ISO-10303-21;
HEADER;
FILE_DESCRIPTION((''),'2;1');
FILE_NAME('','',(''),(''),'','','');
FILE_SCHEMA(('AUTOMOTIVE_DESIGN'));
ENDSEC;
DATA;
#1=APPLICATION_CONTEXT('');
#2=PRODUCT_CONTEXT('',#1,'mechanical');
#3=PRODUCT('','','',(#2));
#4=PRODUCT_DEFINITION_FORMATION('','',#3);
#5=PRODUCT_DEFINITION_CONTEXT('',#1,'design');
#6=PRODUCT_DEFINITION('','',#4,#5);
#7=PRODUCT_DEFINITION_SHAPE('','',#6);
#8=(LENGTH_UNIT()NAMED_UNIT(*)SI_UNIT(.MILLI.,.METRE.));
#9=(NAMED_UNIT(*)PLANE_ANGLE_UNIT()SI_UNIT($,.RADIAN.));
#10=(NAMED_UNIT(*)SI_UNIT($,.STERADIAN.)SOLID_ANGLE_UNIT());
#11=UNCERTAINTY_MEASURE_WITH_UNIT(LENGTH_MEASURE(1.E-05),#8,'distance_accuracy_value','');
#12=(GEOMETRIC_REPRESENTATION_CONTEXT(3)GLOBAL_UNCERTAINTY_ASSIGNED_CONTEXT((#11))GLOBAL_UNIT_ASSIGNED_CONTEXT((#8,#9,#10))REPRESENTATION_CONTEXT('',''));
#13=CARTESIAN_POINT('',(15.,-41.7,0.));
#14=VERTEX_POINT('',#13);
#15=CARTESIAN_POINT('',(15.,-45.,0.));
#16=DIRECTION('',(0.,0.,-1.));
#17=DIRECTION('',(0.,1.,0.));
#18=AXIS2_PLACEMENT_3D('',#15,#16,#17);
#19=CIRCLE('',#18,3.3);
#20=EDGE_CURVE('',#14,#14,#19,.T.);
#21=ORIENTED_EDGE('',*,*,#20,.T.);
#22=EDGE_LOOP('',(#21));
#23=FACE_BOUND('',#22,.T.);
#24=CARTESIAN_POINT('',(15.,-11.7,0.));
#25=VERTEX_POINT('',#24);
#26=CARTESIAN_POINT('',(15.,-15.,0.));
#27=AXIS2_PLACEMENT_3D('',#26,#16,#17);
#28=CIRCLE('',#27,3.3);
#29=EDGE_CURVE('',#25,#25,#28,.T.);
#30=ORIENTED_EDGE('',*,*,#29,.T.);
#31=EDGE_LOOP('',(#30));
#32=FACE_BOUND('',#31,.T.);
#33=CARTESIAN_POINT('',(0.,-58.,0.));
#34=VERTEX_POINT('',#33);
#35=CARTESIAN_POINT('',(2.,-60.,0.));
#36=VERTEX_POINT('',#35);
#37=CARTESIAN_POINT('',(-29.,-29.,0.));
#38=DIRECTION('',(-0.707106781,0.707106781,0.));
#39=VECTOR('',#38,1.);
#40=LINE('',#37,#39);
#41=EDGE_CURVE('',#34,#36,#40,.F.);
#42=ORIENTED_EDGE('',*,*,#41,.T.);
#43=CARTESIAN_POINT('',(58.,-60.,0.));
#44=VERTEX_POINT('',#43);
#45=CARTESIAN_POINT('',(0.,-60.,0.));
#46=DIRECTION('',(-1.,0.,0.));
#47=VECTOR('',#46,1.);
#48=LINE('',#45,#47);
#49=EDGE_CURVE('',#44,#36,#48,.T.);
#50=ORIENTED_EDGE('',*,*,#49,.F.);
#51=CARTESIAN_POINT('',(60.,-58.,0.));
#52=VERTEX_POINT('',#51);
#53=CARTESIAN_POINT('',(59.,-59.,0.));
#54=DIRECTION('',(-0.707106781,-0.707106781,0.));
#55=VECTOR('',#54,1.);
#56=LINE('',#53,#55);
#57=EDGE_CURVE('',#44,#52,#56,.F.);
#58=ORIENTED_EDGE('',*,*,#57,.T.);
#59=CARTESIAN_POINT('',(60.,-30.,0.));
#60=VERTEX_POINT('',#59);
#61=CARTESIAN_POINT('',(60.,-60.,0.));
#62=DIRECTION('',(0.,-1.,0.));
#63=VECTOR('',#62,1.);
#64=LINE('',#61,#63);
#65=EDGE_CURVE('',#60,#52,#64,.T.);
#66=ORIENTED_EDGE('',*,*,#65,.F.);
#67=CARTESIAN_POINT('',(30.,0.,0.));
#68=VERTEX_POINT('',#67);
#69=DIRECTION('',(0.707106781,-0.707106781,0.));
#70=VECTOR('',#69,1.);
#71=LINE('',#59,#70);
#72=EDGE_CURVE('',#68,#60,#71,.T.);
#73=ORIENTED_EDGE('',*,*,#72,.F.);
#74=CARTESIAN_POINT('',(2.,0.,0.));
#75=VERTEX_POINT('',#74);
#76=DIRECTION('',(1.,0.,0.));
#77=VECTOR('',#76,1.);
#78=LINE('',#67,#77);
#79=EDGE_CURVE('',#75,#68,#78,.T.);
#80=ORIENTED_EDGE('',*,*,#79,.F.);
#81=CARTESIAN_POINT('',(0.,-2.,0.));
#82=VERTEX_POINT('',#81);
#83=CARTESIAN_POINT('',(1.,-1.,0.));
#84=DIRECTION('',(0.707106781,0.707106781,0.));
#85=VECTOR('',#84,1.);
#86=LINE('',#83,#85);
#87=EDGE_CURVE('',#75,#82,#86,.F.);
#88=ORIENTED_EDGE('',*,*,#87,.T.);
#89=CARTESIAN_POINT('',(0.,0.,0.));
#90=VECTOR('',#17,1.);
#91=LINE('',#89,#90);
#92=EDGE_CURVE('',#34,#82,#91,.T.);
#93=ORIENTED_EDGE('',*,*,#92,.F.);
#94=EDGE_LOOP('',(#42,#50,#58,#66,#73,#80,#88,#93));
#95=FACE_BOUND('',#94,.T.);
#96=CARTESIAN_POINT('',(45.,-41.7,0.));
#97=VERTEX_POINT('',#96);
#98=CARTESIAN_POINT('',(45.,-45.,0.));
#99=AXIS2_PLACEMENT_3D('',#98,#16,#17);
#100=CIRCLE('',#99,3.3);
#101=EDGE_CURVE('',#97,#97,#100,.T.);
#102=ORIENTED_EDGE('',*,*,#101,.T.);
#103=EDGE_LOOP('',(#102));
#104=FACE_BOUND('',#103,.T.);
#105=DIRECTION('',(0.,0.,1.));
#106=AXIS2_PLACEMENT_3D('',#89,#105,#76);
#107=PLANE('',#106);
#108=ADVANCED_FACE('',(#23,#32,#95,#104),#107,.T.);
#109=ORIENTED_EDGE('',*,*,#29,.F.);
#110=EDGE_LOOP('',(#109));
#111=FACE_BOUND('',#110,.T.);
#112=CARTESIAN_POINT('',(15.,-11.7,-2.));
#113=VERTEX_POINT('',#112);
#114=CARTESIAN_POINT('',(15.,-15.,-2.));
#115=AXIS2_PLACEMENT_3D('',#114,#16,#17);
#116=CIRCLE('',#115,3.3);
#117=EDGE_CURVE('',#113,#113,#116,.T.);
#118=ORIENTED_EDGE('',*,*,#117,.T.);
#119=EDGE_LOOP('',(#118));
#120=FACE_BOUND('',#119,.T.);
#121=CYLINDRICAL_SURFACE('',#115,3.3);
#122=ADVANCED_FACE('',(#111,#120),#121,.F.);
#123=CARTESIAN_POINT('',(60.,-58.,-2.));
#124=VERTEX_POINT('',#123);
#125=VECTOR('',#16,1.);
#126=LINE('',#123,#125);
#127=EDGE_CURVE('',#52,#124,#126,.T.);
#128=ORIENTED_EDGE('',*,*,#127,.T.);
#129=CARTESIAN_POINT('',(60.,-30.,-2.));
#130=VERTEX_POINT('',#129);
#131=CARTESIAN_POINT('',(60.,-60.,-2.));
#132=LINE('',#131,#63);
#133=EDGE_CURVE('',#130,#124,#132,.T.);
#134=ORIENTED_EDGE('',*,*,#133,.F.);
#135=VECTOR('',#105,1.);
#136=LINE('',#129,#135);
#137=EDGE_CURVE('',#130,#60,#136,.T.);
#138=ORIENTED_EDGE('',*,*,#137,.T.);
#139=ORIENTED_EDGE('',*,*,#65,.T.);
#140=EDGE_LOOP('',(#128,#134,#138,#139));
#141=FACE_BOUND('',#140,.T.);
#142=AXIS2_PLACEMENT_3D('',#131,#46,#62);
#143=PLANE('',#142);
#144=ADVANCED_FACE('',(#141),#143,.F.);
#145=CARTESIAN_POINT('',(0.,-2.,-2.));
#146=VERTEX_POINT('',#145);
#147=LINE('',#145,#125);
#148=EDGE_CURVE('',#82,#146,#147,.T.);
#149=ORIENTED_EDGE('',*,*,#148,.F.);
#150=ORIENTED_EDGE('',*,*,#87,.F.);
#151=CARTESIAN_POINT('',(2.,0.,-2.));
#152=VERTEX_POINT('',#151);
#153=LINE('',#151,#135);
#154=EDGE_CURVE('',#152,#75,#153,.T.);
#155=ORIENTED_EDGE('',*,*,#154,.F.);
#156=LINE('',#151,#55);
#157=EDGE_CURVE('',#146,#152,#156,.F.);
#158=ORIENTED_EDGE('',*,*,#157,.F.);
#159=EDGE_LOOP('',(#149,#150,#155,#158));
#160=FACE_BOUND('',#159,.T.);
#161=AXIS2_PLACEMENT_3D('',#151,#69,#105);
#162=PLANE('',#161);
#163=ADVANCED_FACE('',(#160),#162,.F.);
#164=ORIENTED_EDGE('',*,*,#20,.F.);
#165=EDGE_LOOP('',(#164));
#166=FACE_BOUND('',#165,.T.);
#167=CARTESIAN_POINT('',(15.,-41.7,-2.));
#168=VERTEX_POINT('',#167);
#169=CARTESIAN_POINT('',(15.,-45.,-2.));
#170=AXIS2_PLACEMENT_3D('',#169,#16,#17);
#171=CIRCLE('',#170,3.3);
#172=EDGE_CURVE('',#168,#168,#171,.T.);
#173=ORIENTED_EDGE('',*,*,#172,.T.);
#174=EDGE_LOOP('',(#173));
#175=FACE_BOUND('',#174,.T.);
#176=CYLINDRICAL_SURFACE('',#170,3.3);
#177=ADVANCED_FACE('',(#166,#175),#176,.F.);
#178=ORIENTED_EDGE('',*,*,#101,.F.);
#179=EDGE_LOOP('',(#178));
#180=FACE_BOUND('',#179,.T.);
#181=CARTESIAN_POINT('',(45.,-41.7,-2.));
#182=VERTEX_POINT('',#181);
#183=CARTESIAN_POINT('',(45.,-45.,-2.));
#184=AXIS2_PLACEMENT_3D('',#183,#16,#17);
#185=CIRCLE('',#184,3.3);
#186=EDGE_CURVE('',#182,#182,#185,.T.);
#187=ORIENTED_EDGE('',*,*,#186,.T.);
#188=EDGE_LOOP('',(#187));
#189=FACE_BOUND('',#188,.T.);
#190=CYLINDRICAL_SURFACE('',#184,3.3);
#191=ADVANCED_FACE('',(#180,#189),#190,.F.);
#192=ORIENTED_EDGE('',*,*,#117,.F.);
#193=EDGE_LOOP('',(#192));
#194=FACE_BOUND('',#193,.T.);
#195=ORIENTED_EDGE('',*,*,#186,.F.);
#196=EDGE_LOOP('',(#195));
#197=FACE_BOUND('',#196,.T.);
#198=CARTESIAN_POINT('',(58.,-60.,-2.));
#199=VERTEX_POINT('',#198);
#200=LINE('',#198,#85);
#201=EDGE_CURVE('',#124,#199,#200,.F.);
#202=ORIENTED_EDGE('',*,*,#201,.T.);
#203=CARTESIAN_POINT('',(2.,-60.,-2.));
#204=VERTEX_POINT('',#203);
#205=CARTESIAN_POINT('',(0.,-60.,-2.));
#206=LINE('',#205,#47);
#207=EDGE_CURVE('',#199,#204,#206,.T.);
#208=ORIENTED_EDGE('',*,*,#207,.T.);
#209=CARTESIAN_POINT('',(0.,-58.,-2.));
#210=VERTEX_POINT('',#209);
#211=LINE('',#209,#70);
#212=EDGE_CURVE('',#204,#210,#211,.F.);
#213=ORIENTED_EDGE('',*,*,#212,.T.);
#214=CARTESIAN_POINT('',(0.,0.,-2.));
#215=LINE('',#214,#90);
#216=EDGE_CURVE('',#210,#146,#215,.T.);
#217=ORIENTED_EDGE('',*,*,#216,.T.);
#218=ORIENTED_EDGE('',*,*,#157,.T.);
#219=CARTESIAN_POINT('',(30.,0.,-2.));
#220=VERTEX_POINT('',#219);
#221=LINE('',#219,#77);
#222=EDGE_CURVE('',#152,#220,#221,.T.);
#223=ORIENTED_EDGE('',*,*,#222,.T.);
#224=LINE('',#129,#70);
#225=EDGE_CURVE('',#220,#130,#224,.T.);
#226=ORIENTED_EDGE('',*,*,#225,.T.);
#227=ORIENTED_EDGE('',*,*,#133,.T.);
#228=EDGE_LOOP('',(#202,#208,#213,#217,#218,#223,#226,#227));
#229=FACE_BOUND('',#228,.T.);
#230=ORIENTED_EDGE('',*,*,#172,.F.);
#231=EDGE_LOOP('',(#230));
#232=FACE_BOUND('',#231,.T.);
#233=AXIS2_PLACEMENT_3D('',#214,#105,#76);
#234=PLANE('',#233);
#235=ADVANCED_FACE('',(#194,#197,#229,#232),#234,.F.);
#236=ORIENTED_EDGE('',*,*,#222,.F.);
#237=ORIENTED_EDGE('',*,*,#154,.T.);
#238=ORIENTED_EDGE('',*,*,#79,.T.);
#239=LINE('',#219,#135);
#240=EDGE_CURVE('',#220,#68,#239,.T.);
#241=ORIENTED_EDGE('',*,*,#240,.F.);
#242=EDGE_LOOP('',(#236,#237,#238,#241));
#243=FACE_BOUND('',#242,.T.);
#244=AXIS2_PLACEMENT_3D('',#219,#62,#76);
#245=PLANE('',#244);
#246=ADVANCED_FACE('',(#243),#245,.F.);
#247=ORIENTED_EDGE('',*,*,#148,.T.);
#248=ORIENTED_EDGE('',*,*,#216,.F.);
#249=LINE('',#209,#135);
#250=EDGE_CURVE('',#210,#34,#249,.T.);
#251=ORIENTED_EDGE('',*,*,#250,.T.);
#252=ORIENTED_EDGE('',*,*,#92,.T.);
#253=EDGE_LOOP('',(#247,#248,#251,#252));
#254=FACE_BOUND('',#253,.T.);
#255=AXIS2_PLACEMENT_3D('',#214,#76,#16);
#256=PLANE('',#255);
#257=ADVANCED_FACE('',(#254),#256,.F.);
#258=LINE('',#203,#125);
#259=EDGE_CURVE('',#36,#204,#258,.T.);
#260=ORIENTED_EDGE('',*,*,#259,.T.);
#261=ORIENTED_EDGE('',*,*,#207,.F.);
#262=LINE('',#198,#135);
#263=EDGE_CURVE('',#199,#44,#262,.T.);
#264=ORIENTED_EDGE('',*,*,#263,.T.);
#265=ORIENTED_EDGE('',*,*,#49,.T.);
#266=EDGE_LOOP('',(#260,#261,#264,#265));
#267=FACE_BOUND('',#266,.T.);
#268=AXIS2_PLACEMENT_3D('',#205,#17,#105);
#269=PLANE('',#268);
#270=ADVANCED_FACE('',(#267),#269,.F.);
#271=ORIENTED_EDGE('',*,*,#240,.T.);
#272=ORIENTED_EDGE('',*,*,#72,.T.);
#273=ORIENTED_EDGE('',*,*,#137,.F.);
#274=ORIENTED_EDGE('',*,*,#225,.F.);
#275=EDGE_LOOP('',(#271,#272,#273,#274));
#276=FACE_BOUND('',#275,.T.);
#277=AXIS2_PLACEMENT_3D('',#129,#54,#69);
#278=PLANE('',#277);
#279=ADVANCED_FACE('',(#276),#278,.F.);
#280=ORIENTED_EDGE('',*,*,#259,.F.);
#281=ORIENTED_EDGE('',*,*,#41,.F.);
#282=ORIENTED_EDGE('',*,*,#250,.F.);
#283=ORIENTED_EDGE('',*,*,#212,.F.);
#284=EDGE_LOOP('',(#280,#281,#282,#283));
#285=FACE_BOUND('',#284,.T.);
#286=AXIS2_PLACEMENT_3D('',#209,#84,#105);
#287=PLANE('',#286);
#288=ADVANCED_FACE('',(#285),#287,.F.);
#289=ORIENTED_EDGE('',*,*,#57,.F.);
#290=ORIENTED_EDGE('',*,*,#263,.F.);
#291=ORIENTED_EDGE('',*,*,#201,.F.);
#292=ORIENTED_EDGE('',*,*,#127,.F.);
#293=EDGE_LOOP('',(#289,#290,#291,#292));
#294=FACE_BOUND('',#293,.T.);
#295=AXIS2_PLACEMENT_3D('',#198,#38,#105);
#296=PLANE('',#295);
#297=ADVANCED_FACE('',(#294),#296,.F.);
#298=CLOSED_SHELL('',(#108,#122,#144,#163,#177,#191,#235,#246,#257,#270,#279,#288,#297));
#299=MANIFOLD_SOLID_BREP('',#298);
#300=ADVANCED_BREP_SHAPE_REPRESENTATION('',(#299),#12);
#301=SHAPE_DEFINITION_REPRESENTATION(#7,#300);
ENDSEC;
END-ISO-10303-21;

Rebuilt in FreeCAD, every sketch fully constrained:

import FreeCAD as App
import Part
import Sketcher
Q = App.Units.Quantity


def edges_at(feature, points):
    """Names of the edges that pass closest to the given points."""
    edges = feature.Shape.Edges
    near = lambda p: min(range(len(edges)), key=lambda i: edges[i].distToShape(Part.Vertex(*p))[0])
    return sorted({f"Edge{near(p) + 1}" for p in points})

doc = App.newDocument("Part")
body = doc.addObject("PartDesign::Body", "Body")

# Sketch on XY plane
sketch1 = body.newObject("Sketcher::SketchObject", "Sketch")
sketch1.AttachmentSupport = (doc.getObject("XY_Plane"), [""])
sketch1.MapMode = "FlatFace"
sketch1.addGeometry(Part.LineSegment(App.Vector(0, -60, 0), App.Vector(0, 0, 0)), False)
sketch1.addGeometry(Part.LineSegment(App.Vector(0, 0, 0), App.Vector(30, 0, 0)), False)
sketch1.addGeometry(Part.LineSegment(App.Vector(30, 0, 0), App.Vector(60, -30, 0)), False)
sketch1.addGeometry(Part.LineSegment(App.Vector(60, -30, 0), App.Vector(60, -60, 0)), False)
sketch1.addGeometry(Part.LineSegment(App.Vector(60, -60, 0), App.Vector(0, -60, 0)), False)
sketch1.addConstraint(Sketcher.Constraint("Coincident", 0, 2, 1, 1))
sketch1.addConstraint(Sketcher.Constraint("Coincident", 1, 2, 2, 1))
sketch1.addConstraint(Sketcher.Constraint("Coincident", 2, 2, 3, 1))
sketch1.addConstraint(Sketcher.Constraint("Coincident", 3, 2, 4, 1))
sketch1.addConstraint(Sketcher.Constraint("Coincident", 4, 2, 0, 1))
sketch1.addConstraint(Sketcher.Constraint("Vertical", 0))
sketch1.addConstraint(Sketcher.Constraint("Horizontal", 1))
sketch1.addConstraint(Sketcher.Constraint("Vertical", 3))
sketch1.addConstraint(Sketcher.Constraint("Horizontal", 4))
sketch1.addConstraint(Sketcher.Constraint("Coincident", 0, 2, -1, 1))
sketch1.addConstraint(Sketcher.Constraint("Equal", 4, 0))
sketch1.addConstraint(Sketcher.Constraint("Equal", 1, 3))
sketch1.addConstraint(Sketcher.Constraint("DistanceX", 1, 1, 1, 2, Q("30 mm")))
sketch1.addConstraint(Sketcher.Constraint("DistanceX", 4, 2, 4, 1, Q("60 mm")))
pad1 = body.newObject("PartDesign::Pad", "Pad")
pad1.Profile = sketch1
pad1.Length = 2
pad1.Reversed = True

# Sketch on XY plane
sketch2 = body.newObject("Sketcher::SketchObject", "Sketch001")
sketch2.AttachmentSupport = (doc.getObject("XY_Plane"), [""])
sketch2.MapMode = "FlatFace"
sketch2.AttachmentOffset = App.Placement(App.Vector(0, 0, -2), App.Rotation())
sketch2.addGeometry(Part.Circle(App.Vector(15, -45, 0), App.Vector(0, 0, 1), 3.3), False)
sketch2.addGeometry(Part.Circle(App.Vector(15, -15, 0), App.Vector(0, 0, 1), 3.3), False)
sketch2.addGeometry(Part.Circle(App.Vector(45, -45, 0), App.Vector(0, 0, 1), 3.3), False)
sketch2.addConstraint(Sketcher.Constraint("Equal", 0, 1))
sketch2.addConstraint(Sketcher.Constraint("Equal", 1, 2))
sketch2.addConstraint(Sketcher.Constraint("Horizontal", 0, 3, 2, 3))
sketch2.addConstraint(Sketcher.Constraint("Vertical", 0, 3, 1, 3))
sketch2.addConstraint(Sketcher.Constraint("Diameter", 0, Q("6.6 mm")))
sketch2.addConstraint(Sketcher.Constraint("DistanceX", -1, 1, 0, 3, Q("15 mm")))
sketch2.addConstraint(Sketcher.Constraint("DistanceY", 0, 3, -1, 1, Q("45 mm")))
sketch2.addConstraint(Sketcher.Constraint("DistanceY", 1, 3, -1, 1, Q("15 mm")))
sketch2.addConstraint(Sketcher.Constraint("DistanceX", -1, 1, 2, 3, Q("45 mm")))
doc.recompute()
hole = body.newObject("PartDesign::Hole", "Hole")
hole.Profile = sketch2
hole.ThreadType = "None"
hole.Diameter = 6.6
hole.DepthType = "ThroughAll"
hole.Reversed = True
doc.recompute()

chamfer = body.newObject("PartDesign::Chamfer", "Chamfer")
chamfer.Base = (hole, edges_at(hole, [(0, 0, -1), (0, -60, -1), (60, -60, -1)]))
chamfer.Size = 2

doc.recompute()
